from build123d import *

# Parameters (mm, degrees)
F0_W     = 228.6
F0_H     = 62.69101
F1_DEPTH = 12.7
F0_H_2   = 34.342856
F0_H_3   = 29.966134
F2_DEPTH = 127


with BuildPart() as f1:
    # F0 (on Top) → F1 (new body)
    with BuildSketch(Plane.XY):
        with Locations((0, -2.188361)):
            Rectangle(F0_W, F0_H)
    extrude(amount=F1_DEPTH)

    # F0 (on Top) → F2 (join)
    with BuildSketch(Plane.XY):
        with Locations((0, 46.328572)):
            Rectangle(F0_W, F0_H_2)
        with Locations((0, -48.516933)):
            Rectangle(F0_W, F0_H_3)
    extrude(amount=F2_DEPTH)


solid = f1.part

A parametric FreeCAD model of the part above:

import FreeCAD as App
import Part
import Sketcher
from FreeCAD import Vector
Q = App.Units.Quantity

doc = App.newDocument("Part")
body = doc.addObject("PartDesign::Body", "Body")

sketch1 = body.newObject("Sketcher::SketchObject", "Sketch")
sketch1.AttachmentSupport = (doc.getObject("XY_Plane"), [""])
sketch1.MapMode = "FlatFace"
sketch1.addGeometry([
    Part.LineSegment(Vector(-114.3, 29.157144, 0), Vector(-114.3, -33.533866, 0)),
    Part.LineSegment(Vector(-114.3, -33.533866, 0), Vector(114.3, -33.533866, 0)),
    Part.LineSegment(Vector(114.3, -33.533866, 0), Vector(114.3, 29.157144, 0)),
    Part.LineSegment(Vector(114.3, 29.157144, 0), Vector(-114.3, 29.157144, 0)),
], False)
sketch1.addConstraint([
    Sketcher.Constraint("Coincident", 0, 2, 1, 1),
    Sketcher.Constraint("Coincident", 1, 2, 2, 1),
    Sketcher.Constraint("Coincident", 2, 2, 3, 1),
    Sketcher.Constraint("Coincident", 3, 2, 0, 1),
    Sketcher.Constraint("Vertical", 0),
    Sketcher.Constraint("Horizontal", 1),
    Sketcher.Constraint("Vertical", 2),
    Sketcher.Constraint("Horizontal", 3),
    Sketcher.Constraint("DistanceX", 1, 1, 1, 2, Q("9 in")),
    Sketcher.Constraint("DistanceX", 0, 2, -1, 1, Q("4.5 in")),
    Sketcher.Constraint("DistanceY", 0, 2, 0, 1, Q("62.69101 mm")),
    Sketcher.Constraint("DistanceY", 0, 2, -1, 1, Q("33.533866 mm")),
])
pad1 = body.newObject("PartDesign::Pad", "Pad")
pad1.Profile = sketch1
pad1.Length = Q("0.5 in")

sketch2 = body.newObject("Sketcher::SketchObject", "Sketch001")
sketch2.AttachmentSupport = (doc.getObject("XY_Plane"), [""])
sketch2.MapMode = "FlatFace"
sketch2.addGeometry([
    Part.LineSegment(Vector(-114.3, 63.5, 0), Vector(-114.3, 29.157144, 0)),
    Part.LineSegment(Vector(-114.3, 29.157144, 0), Vector(114.3, 29.157144, 0)),
    Part.LineSegment(Vector(114.3, 29.157144, 0), Vector(114.3, 63.5, 0)),
    Part.LineSegment(Vector(114.3, 63.5, 0), Vector(-114.3, 63.5, 0)),
    Part.LineSegment(Vector(-114.3, -33.533866, 0), Vector(-114.3, -63.5, 0)),
    Part.LineSegment(Vector(-114.3, -63.5, 0), Vector(114.3, -63.5, 0)),
    Part.LineSegment(Vector(114.3, -63.5, 0), Vector(114.3, -33.533866, 0)),
    Part.LineSegment(Vector(114.3, -33.533866, 0), Vector(-114.3, -33.533866, 0)),
], False)
sketch2.addConstraint([
    Sketcher.Constraint("Coincident", 0, 2, 1, 1),
    Sketcher.Constraint("Coincident", 1, 2, 2, 1),
    Sketcher.Constraint("Coincident", 2, 2, 3, 1),
    Sketcher.Constraint("Coincident", 3, 2, 0, 1),
    Sketcher.Constraint("Coincident", 4, 2, 5, 1),
    Sketcher.Constraint("Coincident", 5, 2, 6, 1),
    Sketcher.Constraint("Coincident", 6, 2, 7, 1),
    Sketcher.Constraint("Coincident", 7, 2, 4, 1),
    Sketcher.Constraint("Vertical", 0),
    Sketcher.Constraint("Horizontal", 1),
    Sketcher.Constraint("Vertical", 2),
    Sketcher.Constraint("Horizontal", 3),
    Sketcher.Constraint("Vertical", 4),
    Sketcher.Constraint("Horizontal", 5),
    Sketcher.Constraint("Vertical", 6),
    Sketcher.Constraint("Horizontal", 7),
    Sketcher.Constraint("Symmetric", 2, 2, 4, 2, -1, 1),
    Sketcher.Constraint("Vertical", 3, 2, 4, 2),
    Sketcher.Constraint("Vertical", 2, 2, 5, 2),
    Sketcher.Constraint("DistanceX", 1, 1, 1, 2, Q("9 in")),
    Sketcher.Constraint("DistanceY", 4, 2, 3, 2, Q("5 in")),
    Sketcher.Constraint("DistanceY", 0, 2, 0, 1, Q("34.342856 mm")),
    Sketcher.Constraint("DistanceY", 4, 2, 4, 1, Q("29.966134 mm")),
])
pad2 = body.newObject("PartDesign::Pad", "Pad001")
pad2.Profile = sketch2
pad2.Length = Q("5 in")

doc.recompute()
